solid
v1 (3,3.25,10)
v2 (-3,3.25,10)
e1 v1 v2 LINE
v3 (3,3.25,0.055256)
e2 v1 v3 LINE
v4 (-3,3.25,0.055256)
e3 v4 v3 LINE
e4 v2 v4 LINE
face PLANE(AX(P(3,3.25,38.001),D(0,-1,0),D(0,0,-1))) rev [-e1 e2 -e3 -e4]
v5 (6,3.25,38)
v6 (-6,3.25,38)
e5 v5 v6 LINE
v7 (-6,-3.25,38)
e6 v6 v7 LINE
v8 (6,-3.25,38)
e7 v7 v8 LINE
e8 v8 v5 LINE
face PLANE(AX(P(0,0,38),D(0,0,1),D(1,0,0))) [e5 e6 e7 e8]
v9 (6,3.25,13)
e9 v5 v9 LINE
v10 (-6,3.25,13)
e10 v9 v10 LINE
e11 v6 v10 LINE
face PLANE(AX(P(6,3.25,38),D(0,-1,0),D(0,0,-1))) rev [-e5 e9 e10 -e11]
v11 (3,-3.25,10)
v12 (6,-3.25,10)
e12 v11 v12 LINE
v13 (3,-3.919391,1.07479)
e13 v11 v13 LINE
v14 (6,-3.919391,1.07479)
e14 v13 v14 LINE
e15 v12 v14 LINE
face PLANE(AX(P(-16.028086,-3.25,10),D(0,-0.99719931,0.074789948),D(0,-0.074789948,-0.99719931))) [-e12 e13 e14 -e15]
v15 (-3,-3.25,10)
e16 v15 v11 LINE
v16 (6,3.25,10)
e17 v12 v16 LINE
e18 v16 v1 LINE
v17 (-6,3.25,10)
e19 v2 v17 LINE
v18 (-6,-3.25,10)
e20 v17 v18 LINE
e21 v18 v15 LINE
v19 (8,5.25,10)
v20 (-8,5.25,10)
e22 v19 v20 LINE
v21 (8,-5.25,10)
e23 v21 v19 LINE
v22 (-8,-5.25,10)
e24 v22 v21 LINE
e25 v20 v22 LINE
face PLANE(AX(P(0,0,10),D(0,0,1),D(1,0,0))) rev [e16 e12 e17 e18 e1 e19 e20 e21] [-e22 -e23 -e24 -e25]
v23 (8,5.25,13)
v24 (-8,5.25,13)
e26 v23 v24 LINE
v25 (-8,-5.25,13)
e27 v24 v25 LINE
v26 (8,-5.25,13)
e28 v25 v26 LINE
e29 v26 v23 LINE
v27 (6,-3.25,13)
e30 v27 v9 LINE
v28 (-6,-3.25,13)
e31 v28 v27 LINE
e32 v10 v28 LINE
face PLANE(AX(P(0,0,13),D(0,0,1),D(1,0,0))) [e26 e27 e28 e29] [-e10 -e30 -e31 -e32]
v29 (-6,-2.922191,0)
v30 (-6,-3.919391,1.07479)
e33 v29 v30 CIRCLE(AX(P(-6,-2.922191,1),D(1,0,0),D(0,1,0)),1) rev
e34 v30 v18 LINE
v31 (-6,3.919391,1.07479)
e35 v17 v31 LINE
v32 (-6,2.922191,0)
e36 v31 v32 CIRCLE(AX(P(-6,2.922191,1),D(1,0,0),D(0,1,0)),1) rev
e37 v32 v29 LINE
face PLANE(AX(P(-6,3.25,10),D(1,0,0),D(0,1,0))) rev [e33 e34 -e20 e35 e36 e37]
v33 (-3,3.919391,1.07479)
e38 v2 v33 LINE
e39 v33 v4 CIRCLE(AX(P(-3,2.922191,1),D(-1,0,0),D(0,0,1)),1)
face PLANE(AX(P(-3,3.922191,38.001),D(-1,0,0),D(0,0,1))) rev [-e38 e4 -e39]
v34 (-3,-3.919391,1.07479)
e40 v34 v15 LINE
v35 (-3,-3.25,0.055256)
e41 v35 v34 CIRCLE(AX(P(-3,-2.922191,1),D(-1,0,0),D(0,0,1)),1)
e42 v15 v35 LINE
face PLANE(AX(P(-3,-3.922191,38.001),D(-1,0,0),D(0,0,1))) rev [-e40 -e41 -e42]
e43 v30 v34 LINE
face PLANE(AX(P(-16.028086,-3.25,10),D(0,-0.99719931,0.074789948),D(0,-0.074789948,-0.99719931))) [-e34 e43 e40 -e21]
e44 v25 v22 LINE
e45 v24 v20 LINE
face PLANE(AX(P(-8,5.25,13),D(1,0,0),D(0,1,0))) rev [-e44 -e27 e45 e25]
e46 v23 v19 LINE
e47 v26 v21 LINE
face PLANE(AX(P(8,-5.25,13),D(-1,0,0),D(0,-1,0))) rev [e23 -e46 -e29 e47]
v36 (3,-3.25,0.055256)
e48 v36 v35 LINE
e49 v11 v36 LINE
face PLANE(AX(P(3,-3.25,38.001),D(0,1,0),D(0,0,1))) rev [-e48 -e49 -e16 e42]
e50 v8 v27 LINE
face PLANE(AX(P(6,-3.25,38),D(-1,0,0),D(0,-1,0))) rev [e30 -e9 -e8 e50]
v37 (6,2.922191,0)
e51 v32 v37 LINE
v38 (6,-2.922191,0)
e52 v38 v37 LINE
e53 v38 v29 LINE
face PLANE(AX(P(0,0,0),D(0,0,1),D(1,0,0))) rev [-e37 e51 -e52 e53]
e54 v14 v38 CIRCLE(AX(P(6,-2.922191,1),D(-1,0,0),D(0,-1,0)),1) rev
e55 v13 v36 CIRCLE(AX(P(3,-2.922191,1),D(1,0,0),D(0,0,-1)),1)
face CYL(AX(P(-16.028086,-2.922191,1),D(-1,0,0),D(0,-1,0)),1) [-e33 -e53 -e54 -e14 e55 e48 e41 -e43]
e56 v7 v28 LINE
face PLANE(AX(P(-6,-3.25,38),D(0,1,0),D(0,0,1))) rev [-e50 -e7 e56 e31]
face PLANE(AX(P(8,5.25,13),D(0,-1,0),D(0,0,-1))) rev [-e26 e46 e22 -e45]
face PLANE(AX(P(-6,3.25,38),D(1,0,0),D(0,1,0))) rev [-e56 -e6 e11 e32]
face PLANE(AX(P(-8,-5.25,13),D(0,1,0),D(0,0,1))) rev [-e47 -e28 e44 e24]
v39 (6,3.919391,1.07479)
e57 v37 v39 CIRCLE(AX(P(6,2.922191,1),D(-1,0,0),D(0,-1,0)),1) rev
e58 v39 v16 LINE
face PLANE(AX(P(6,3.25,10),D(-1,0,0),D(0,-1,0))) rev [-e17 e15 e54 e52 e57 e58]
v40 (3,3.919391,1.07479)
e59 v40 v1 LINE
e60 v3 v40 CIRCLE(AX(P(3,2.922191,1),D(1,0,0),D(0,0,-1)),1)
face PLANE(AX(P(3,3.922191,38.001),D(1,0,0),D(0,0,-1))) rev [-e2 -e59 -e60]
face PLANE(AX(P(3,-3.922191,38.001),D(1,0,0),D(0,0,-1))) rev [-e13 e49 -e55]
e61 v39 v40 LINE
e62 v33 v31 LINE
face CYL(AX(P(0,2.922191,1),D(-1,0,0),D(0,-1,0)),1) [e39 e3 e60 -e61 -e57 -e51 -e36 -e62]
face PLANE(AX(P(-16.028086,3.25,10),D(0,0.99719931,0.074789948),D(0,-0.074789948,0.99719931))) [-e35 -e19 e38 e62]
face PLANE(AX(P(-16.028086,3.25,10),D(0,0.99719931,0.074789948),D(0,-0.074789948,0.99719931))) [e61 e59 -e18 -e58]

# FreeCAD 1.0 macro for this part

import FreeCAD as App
import Part
import Sketcher


def edges_at(feature, points):
    """Names of the edges that pass closest to the given points."""
    edges = feature.Shape.Edges
    near = lambda p: min(range(len(edges)), key=lambda i: edges[i].distToShape(Part.Vertex(*p))[0])
    return sorted({f"Edge{near(p) + 1}" for p in points})

doc = App.newDocument("Part")
params = doc.addObject("Spreadsheet::Sheet", "Params")
for row, (alias, value) in enumerate([
    ("sketch1_width", "12 mm"),
    ("sketch1_height", "6.5 mm"),
    ("pad1_length", "10 mm"),
    ("sketch2_width", "16 mm"),
    ("sketch2_height", "10.5 mm"),
    ("pad2_length", "3 mm"),
    ("sketch3_width", "12 mm"),
    ("sketch3_height", "6.5 mm"),
    ("pad3_length", "25 mm"),
    ("sketch4_height", "10 mm"),
    ("sketch4_width", "0.75 mm"),
    ("pad4_length", "12 mm"),
    ("fillet_radius", "1 mm"),
    ("sketch5_width", "6 mm"),
    ("pocket1_length", "10 mm"),
    ("sketch6_width", "6 mm"),
    ("pocket2_length", "10 mm"),
], start=1):
    params.set(f"A{row}", alias)
    params.set(f"B{row}", "=" + value)
    params.setAlias(f"B{row}", alias)

body = doc.addObject("PartDesign::Body", "Body")

# Sketch on XY plane
sketch1 = doc.addObject("Sketcher::SketchObject", "Sketch")
body.addObject(sketch1)
sketch1.AttachmentSupport = (doc.XY_Plane, [""])
sketch1.MapMode = "FlatFace"
sketch1.addGeometry([
    Part.LineSegment(App.Vector(-6, 3, 0), App.Vector(-6, -3, 0)),
    Part.LineSegment(App.Vector(-6, -3, 0), App.Vector(6, -3, 0)),
    Part.LineSegment(App.Vector(6, -3, 0), App.Vector(6, 3, 0)),
    Part.LineSegment(App.Vector(6, 3, 0), App.Vector(-6, 3, 0)),
], False)
sketch1.addConstraint([
    Sketcher.Constraint("Coincident", 0, 2, 1, 1),
    Sketcher.Constraint("Coincident", 1, 2, 2, 1),
    Sketcher.Constraint("Coincident", 2, 2, 3, 1),
    Sketcher.Constraint("Coincident", 3, 2, 0, 1),
    Sketcher.Constraint("Vertical", 0),
    Sketcher.Constraint("Horizontal", 1),
    Sketcher.Constraint("Vertical", 2),
    Sketcher.Constraint("Horizontal", 3),
    Sketcher.Constraint("Symmetric", 0, 2, 2, 2, -1, 1),
    Sketcher.Constraint("DistanceX", 1, 1, 1, 2, 12.0),
    Sketcher.Constraint("DistanceY", 0, 2, 0, 1, 6.5),
])
sketch1.setExpression("Constraints[9]", "Params.sketch1_width")
sketch1.setExpression("Constraints[10]", "Params.sketch1_height")
pad1 = doc.addObject("PartDesign::Pad", "Pad")
body.addObject(pad1)
pad1.Profile = sketch1
pad1.setExpression("Length", "Params.pad1_length")

# Sketch on XY plane
sketch2 = doc.addObject("Sketcher::SketchObject", "Sketch001")
body.addObject(sketch2)
sketch2.AttachmentSupport = (doc.XY_Plane, [""])
sketch2.MapMode = "FlatFace"
sketch2.AttachmentOffset = App.Placement(App.Vector(0, 0, 10), App.Rotation())
sketch2.addGeometry([
    Part.LineSegment(App.Vector(-8, 5, 0), App.Vector(-8, -5, 0)),
    Part.LineSegment(App.Vector(-8, -5, 0), App.Vector(8, -5, 0)),
    Part.LineSegment(App.Vector(8, -5, 0), App.Vector(8, 5, 0)),
    Part.LineSegment(App.Vector(8, 5, 0), App.Vector(-8, 5, 0)),
], False)
sketch2.addConstraint([
    Sketcher.Constraint("Coincident", 0, 2, 1, 1),
    Sketcher.Constraint("Coincident", 1, 2, 2, 1),
    Sketcher.Constraint("Coincident", 2, 2, 3, 1),
    Sketcher.Constraint("Coincident", 3, 2, 0, 1),
    Sketcher.Constraint("Vertical", 0),
    Sketcher.Constraint("Horizontal", 1),
    Sketcher.Constraint("Vertical", 2),
    Sketcher.Constraint("Horizontal", 3),
    Sketcher.Constraint("Symmetric", 0, 2, 2, 2, -1, 1),
    Sketcher.Constraint("DistanceX", 1, 1, 1, 2, 16.0),
    Sketcher.Constraint("DistanceY", 0, 2, 0, 1, 10.5),
])
sketch2.setExpression("Constraints[9]", "Params.sketch2_width")
sketch2.setExpression("Constraints[10]", "Params.sketch2_height")
pad2 = doc.addObject("PartDesign::Pad", "Pad001")
body.addObject(pad2)
pad2.Profile = sketch2
pad2.setExpression("Length", "Params.pad2_length")

# Sketch on XY plane
sketch3 = doc.addObject("Sketcher::SketchObject", "Sketch002")
body.addObject(sketch3)
sketch3.AttachmentSupport = (doc.XY_Plane, [""])
sketch3.MapMode = "FlatFace"
sketch3.AttachmentOffset = App.Placement(App.Vector(0, 0, 13), App.Rotation())
sketch3.addGeometry([
    Part.LineSegment(App.Vector(-6, 3, 0), App.Vector(-6, -3, 0)),
    Part.LineSegment(App.Vector(-6, -3, 0), App.Vector(6, -3, 0)),
    Part.LineSegment(App.Vector(6, -3, 0), App.Vector(6, 3, 0)),
    Part.LineSegment(App.Vector(6, 3, 0), App.Vector(-6, 3, 0)),
], False)
sketch3.addConstraint([
    Sketcher.Constraint("Coincident", 0, 2, 1, 1),
    Sketcher.Constraint("Coincident", 1, 2, 2, 1),
    Sketcher.Constraint("Coincident", 2, 2, 3, 1),
    Sketcher.Constraint("Coincident", 3, 2, 0, 1),
    Sketcher.Constraint("Vertical", 0),
    Sketcher.Constraint("Horizontal", 1),
    Sketcher.Constraint("Vertical", 2),
    Sketcher.Constraint("Horizontal", 3),
    Sketcher.Constraint("Symmetric", 0, 2, 2, 2, -1, 1),
    Sketcher.Constraint("DistanceX", 1, 1, 1, 2, 12.0),
    Sketcher.Constraint("DistanceY", 0, 2, 0, 1, 6.5),
])
sketch3.setExpression("Constraints[9]", "Params.sketch3_width")
sketch3.setExpression("Constraints[10]", "Params.sketch3_height")
pad3 = doc.addObject("PartDesign::Pad", "Pad002")
body.addObject(pad3)
pad3.Profile = sketch3
pad3.setExpression("Length", "Params.pad3_length")

# Sketch on YZ plane
sketch4 = doc.addObject("Sketcher::SketchObject", "Sketch003")
body.addObject(sketch4)
sketch4.AttachmentSupport = (doc.YZ_Plane, [""])
sketch4.MapMode = "FlatFace"
sketch4.AttachmentOffset = App.Placement(App.Vector(0, 0, 6), App.Rotation())
sketch4.addGeometry([
    Part.LineSegment(App.Vector(4, 0, 0), App.Vector(3.2, 10, 0)),  # 0
    Part.LineSegment(App.Vector(3.2, 10, 0), App.Vector(3.2, 0, 0)),  # 1
    Part.LineSegment(App.Vector(3.2, 0, 0), App.Vector(4, 0, 0)),  # 2
    Part.LineSegment(App.Vector(-3.2, 10, 0), App.Vector(-4, 0, 0)),  # 3
    Part.LineSegment(App.Vector(-4, 0, 0), App.Vector(-3.2, 0, 0)),  # 4
    Part.LineSegment(App.Vector(-3.2, 0, 0), App.Vector(-3.2, 10, 0)),  # 5
], False)
sketch4.addConstraint([
    Sketcher.Constraint("Coincident", 0, 2, 1, 1),
    Sketcher.Constraint("Coincident", 1, 2, 2, 1),
    Sketcher.Constraint("Coincident", 2, 2, 0, 1),
    Sketcher.Constraint("Coincident", 3, 2, 4, 1),
    Sketcher.Constraint("Coincident", 4, 2, 5, 1),
    Sketcher.Constraint("Coincident", 5, 2, 3, 1),
    Sketcher.Constraint("Vertical", 1),
    Sketcher.Constraint("Horizontal", 2),
    Sketcher.Constraint("Horizontal", 4),
    Sketcher.Constraint("Vertical", 5),
    Sketcher.Constraint("Symmetric", 2, 2, 3, 2, -1, 1),
    Sketcher.Constraint("Symmetric", 1, 2, 4, 2, -2),
    Sketcher.Constraint("Horizontal", 0, 2, 5, 2),
    Sketcher.Constraint("DistanceY", 1, 2, 1, 1, 10.0),
    Sketcher.Constraint("DistanceX", -1, 1, 2, 2, 4.0),
    Sketcher.Constraint("DistanceX", 2, 1, 2, 2, 0.75),
])
sketch4.setExpression("Constraints[13]", "Params.sketch4_height")
sketch4.setExpression("Constraints[15]", "Params.sketch4_width")
pad4 = doc.addObject("PartDesign::Pad", "Pad003")
body.addObject(pad4)
pad4.Profile = sketch4
pad4.setExpression("Length", "Params.pad4_length")
pad4.Reversed = True
doc.recompute()

fillet = doc.addObject("PartDesign::Fillet", "Fillet")
body.addObject(fillet)
fillet.Base = (pad4, edges_at(pad4, [(0, -4, 0), (0, 4, 0)]))
fillet.setExpression("Radius", "Params.fillet_radius")

# Sketch on XY plane
sketch5 = doc.addObject("Sketcher::SketchObject", "Sketch004")
body.addObject(sketch5)
sketch5.AttachmentSupport = (doc.XY_Plane, [""])
sketch5.MapMode = "FlatFace"
sketch5.addGeometry([
    Part.LineSegment(App.Vector(3, 3.9, 0), App.Vector(3, 3.2, 0)),
    Part.LineSegment(App.Vector(3, 3.2, 0), App.Vector(-3, 3.2, 0)),
    Part.LineSegment(App.Vector(-3, 3.2, 0), App.Vector(-3, 3.9, 0)),
    Part.LineSegment(App.Vector(-3, 3.9, 0), App.Vector(3, 3.9, 0)),
], False)
sketch5.addConstraint([
    Sketcher.Constraint("Coincident", 0, 2, 1, 1),
    Sketcher.Constraint("Coincident", 1, 2, 2, 1),
    Sketcher.Constraint("Coincident", 2, 2, 3, 1),
    Sketcher.Constraint("Coincident", 3, 2, 0, 1),
    Sketcher.Constraint("Vertical", 0),
    Sketcher.Constraint("Horizontal", 1),
    Sketcher.Constraint("Vertical", 2),
    Sketcher.Constraint("Horizontal", 3),
    Sketcher.Constraint("DistanceX", 1, 2, 1, 1, 6.0),
    Sketcher.Constraint("DistanceX", -1, 1, 0, 2, 3.0),
    Sketcher.Constraint("DistanceY", -1, 1, 0, 2, 3.25),
    Sketcher.Constraint("DistanceY", 0, 2, 0, 1, 0.672191),
])
sketch5.setExpression("Constraints[8]", "Params.sketch5_width")
pocket1 = doc.addObject("PartDesign::Pocket", "Pocket")
body.addObject(pocket1)
pocket1.Profile = sketch5
pocket1.setExpression("Length", "Params.pocket1_length")
pocket1.Reversed = True

# Sketch on XY plane
sketch6 = doc.addObject("Sketcher::SketchObject", "Sketch005")
body.addObject(sketch6)
sketch6.AttachmentSupport = (doc.XY_Plane, [""])
sketch6.MapMode = "FlatFace"
sketch6.addGeometry([
    Part.LineSegment(App.Vector(3, -3.2, 0), App.Vector(3, -3.9, 0)),
    Part.LineSegment(App.Vector(3, -3.9, 0), App.Vector(-3, -3.9, 0)),
    Part.LineSegment(App.Vector(-3, -3.9, 0), App.Vector(-3, -3.2, 0)),
    Part.LineSegment(App.Vector(-3, -3.2, 0), App.Vector(3, -3.2, 0)),
], False)
sketch6.addConstraint([
    Sketcher.Constraint("Coincident", 0, 2, 1, 1),
    Sketcher.Constraint("Coincident", 1, 2, 2, 1),
    Sketcher.Constraint("Coincident", 2, 2, 3, 1),
    Sketcher.Constraint("Coincident", 3, 2, 0, 1),
    Sketcher.Constraint("Vertical", 0),
    Sketcher.Constraint("Horizontal", 1),
    Sketcher.Constraint("Vertical", 2),
    Sketcher.Constraint("Horizontal", 3),
    Sketcher.Constraint("DistanceX", 1, 2, 1, 1, 6.0),
    Sketcher.Constraint("DistanceX", -1, 1, 0, 2, 3.0),
    Sketcher.Constraint("DistanceY", 2, 2, -1, 1, 3.25),
    Sketcher.Constraint("DistanceY", 0, 2, 0, 1, 0.672191),
])
sketch6.setExpression("Constraints[8]", "Params.sketch6_width")
pocket2 = doc.addObject("PartDesign::Pocket", "Pocket001")
body.addObject(pocket2)
pocket2.Profile = sketch6
pocket2.setExpression("Length", "Params.pocket2_length")
pocket2.Reversed = True

doc.recompute()
